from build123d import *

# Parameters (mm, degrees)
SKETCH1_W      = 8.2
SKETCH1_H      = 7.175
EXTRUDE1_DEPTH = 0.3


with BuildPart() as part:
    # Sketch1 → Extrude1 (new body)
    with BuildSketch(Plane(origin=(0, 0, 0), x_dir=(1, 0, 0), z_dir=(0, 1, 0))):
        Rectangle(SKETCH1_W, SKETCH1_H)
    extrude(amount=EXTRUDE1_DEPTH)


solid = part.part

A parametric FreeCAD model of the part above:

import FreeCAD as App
import Part
import Sketcher
from FreeCAD import Vector

doc = App.newDocument("Part")
body = doc.addObject("PartDesign::Body", "Body")

# Sketch on XZ plane
sketch1 = doc.addObject("Sketcher::SketchObject", "Sketch")
body.addObject(sketch1)
sketch1.AttachmentSupport = (doc.XZ_Plane, [""])
sketch1.MapMode = "FlatFace"
sketch1.addGeometry(Part.LineSegment(Vector(-4, -4, 0), Vector(-4, 4, 0)), False)
sketch1.addGeometry(Part.LineSegment(Vector(-4, 4, 0), Vector(4, 4, 0)), False)
sketch1.addGeometry(Part.LineSegment(Vector(4, 4, 0), Vector(4, -4, 0)), False)
sketch1.addGeometry(Part.LineSegment(Vector(4, -4, 0), Vector(-4, -4, 0)), False)
sketch1.addConstraint(Sketcher.Constraint("Coincident", 0, 2, 1, 1))
sketch1.addConstraint(Sketcher.Constraint("Coincident", 1, 2, 2, 1))
sketch1.addConstraint(Sketcher.Constraint("Coincident", 2, 2, 3, 1))
sketch1.addConstraint(Sketcher.Constraint("Coincident", 3, 2, 0, 1))
sketch1.addConstraint(Sketcher.Constraint("Vertical", 0))
sketch1.addConstraint(Sketcher.Constraint("Horizontal", 1))
sketch1.addConstraint(Sketcher.Constraint("Vertical", 2))
sketch1.addConstraint(Sketcher.Constraint("Horizontal", 3))
sketch1.addConstraint(Sketcher.Constraint("Symmetric", 0, 2, 2, 2, -1, 1))
sketch1.addConstraint(Sketcher.Constraint("DistanceX", 1, 1, 1, 2, 8.2))
sketch1.addConstraint(Sketcher.Constraint("DistanceY", 0, 1, 0, 2, 7.175))
pad1 = doc.addObject("PartDesign::Pad", "Pad")
body.addObject(pad1)
pad1.Profile = sketch1
pad1.Length = 0.3
pad1.Reversed = True

doc.recompute()
